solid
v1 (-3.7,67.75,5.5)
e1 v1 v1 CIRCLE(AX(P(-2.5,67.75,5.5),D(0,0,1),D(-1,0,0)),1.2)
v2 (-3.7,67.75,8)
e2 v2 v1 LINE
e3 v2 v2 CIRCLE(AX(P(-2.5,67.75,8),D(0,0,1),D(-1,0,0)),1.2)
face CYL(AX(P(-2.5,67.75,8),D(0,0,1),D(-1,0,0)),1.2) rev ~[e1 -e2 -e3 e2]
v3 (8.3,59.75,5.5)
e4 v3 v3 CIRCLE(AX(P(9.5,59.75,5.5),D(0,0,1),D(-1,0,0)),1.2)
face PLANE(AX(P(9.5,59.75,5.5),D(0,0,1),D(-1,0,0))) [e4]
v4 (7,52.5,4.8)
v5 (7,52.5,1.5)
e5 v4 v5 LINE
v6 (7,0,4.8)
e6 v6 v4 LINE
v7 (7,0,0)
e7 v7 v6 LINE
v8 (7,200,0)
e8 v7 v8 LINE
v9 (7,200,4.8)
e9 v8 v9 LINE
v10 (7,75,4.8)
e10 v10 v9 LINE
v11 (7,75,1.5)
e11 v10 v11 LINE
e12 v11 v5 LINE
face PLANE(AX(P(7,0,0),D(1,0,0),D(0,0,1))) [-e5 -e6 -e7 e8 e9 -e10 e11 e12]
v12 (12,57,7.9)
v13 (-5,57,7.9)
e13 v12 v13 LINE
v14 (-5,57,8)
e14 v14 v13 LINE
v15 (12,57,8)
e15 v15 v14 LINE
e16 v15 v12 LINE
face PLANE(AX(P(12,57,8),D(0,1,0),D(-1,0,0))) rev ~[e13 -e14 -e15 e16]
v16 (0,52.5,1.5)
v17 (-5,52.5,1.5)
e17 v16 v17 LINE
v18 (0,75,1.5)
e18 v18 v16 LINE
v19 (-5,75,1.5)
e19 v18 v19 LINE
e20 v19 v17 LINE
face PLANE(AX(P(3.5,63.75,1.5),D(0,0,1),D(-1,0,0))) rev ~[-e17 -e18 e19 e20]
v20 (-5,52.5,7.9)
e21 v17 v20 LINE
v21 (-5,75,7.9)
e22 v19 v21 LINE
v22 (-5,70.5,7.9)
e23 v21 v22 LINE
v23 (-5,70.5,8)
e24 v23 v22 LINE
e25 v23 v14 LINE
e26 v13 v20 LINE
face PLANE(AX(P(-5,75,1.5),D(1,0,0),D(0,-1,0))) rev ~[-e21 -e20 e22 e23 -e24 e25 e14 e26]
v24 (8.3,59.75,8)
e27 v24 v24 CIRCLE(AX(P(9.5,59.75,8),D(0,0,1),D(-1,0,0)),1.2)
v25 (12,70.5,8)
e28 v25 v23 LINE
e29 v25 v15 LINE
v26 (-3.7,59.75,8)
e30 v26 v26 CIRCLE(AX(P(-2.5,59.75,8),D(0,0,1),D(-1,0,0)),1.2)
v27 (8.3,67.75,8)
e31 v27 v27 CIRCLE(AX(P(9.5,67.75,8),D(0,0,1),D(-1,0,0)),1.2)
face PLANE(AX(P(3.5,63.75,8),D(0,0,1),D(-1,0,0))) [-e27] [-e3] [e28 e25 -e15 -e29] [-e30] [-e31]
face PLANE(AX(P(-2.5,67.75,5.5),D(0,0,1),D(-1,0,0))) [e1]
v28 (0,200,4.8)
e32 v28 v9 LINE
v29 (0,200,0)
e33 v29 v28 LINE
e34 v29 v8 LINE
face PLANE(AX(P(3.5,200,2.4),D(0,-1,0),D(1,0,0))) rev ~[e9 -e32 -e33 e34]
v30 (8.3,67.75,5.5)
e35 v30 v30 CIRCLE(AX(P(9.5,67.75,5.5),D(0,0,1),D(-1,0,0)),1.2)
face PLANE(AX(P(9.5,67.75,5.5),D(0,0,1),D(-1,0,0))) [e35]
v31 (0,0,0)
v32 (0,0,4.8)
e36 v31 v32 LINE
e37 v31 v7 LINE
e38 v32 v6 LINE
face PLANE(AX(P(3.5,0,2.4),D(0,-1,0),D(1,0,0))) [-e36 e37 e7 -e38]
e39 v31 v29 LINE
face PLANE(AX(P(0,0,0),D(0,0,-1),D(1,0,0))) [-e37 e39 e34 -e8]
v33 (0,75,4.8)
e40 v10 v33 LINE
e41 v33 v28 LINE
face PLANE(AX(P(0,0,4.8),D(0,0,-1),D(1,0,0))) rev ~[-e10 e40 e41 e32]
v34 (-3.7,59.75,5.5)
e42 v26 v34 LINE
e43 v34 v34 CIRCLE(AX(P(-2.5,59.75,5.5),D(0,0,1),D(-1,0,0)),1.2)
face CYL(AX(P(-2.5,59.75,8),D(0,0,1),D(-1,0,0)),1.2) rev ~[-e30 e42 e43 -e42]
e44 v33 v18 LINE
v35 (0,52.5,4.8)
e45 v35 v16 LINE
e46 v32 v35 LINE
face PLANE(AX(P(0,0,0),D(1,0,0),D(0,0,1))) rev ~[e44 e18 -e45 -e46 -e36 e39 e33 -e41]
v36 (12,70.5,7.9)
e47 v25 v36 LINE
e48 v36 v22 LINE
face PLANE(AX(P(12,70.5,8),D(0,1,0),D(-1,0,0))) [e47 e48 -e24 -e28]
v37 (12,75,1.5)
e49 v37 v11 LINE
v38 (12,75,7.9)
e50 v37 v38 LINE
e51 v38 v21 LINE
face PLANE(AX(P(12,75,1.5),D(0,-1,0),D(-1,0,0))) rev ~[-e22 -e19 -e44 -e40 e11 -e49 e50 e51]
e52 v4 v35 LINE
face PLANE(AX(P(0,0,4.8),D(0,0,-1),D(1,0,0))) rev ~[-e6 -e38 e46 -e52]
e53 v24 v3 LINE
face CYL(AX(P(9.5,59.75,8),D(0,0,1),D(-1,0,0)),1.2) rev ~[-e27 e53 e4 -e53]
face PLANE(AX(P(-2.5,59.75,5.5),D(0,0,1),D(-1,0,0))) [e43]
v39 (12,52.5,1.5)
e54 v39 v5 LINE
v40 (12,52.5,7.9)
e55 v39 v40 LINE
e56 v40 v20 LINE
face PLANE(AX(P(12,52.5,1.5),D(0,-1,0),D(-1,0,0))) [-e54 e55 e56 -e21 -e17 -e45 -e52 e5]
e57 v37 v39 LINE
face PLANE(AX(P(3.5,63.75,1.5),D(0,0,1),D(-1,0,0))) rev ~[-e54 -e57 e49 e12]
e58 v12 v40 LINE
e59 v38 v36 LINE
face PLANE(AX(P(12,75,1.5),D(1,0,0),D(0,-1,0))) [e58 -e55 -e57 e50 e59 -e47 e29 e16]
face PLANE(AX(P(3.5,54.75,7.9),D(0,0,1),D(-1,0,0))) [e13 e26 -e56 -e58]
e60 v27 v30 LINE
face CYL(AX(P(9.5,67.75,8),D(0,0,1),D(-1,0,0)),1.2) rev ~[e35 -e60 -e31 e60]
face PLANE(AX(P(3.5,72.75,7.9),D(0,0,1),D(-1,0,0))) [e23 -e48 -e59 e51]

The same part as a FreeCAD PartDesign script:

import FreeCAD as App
import Part
import Sketcher
from FreeCAD import Vector


def add_polygon(sketch, points):
    """Adds a closed chain of lines whose ends are joined by coincident constraints."""
    first, n = sketch.GeometryCount, len(points)
    for a, b in zip(points, points[1:] + points[:1]):
        sketch.addGeometry(Part.LineSegment(App.Vector(*a, 0), App.Vector(*b, 0)), False)
    for i in range(n):
        sketch.addConstraint(Sketcher.Constraint("Coincident", first + i, 2, first + (i + 1) % n, 1))

doc = App.newDocument("Part")
params = doc.addObject("Spreadsheet::Sheet", "Params")
for row, (alias, value) in enumerate([
    ("sketch1_width", "7 mm"),
    ("sketch1_height", "4.8 mm"),
    ("pad1_length", "200 mm"),
    ("sketch2_width", "17 mm"),
    ("sketch2_height", "22.5 mm"),
    ("pad2_length", "6.5 mm"),
    ("sketch3_width", "17 mm"),
    ("sketch3_height", "4.5 mm"),
    ("pocket1_length", "0.1 mm"),
    ("sketch4_diameter", "2.4 mm"),
    ("pocket2_length", "2.5 mm"),
], start=1):
    params.set(f"A{row}", alias)
    params.set(f"B{row}", "=" + value)
    params.setAlias(f"B{row}", alias)

body = doc.addObject("PartDesign::Body", "Body")

sketch1 = body.newObject("Sketcher::SketchObject", "Sketch")
sketch1.AttachmentSupport = (doc.getObject("XZ_Plane"), [""])
sketch1.MapMode = "FlatFace"
add_polygon(sketch1, [(0, 4.8), (0, 0), (7, 0), (7, 4.8)])
sketch1.addConstraint([
    Sketcher.Constraint("Vertical", 0),
    Sketcher.Constraint("Horizontal", 1),
    Sketcher.Constraint("Vertical", 2),
    Sketcher.Constraint("Horizontal", 3),
    Sketcher.Constraint("Coincident", 0, 2, -1, 1),
    Sketcher.Constraint("DistanceX", 1, 1, 1, 2, 7.0),
    Sketcher.Constraint("DistanceY", 0, 2, 0, 1, 4.8),
])
sketch1.setExpression("Constraints[9]", "Params.sketch1_width")
sketch1.setExpression("Constraints[10]", "Params.sketch1_height")
pad1 = body.newObject("PartDesign::Pad", "Pad")
pad1.Profile = sketch1
pad1.setExpression("Length", "Params.pad1_length")
pad1.Reversed = True

sketch2 = body.newObject("Sketcher::SketchObject", "Sketch001")
sketch2.AttachmentSupport = (doc.getObject("XY_Plane"), [""])
sketch2.MapMode = "FlatFace"
sketch2.AttachmentOffset = App.Placement(Vector(0, 0, 1.5), App.Rotation())
add_polygon(sketch2, [(12, 52.5), (12, 75), (-5, 75), (-5, 52.5)])
sketch2.addConstraint([
    Sketcher.Constraint("Vertical", 0),
    Sketcher.Constraint("Horizontal", 1),
    Sketcher.Constraint("Vertical", 2),
    Sketcher.Constraint("Horizontal", 3),
    Sketcher.Constraint("DistanceX", 1, 2, 1, 1, 17.0),
    Sketcher.Constraint("DistanceY", 0, 1, 0, 2, 22.5),
    Sketcher.Constraint("DistanceX", -1, 1, 0, 2, 12.0),
    Sketcher.Constraint("DistanceY", -1, 1, 0, 2, 75.0),
])
sketch2.setExpression("Constraints[8]", "Params.sketch2_width")
sketch2.setExpression("Constraints[9]", "Params.sketch2_height")
pad2 = body.newObject("PartDesign::Pad", "Pad001")
pad2.Profile = sketch2
pad2.setExpression("Length", "Params.pad2_length")

sketch3 = body.newObject("Sketcher::SketchObject", "Sketch002")
sketch3.AttachmentSupport = (doc.getObject("XY_Plane"), [""])
sketch3.MapMode = "FlatFace"
sketch3.AttachmentOffset = App.Placement(Vector(0, 0, 8), App.Rotation())
add_polygon(sketch3, [(12, 52.5), (12, 57), (-5, 57), (-5, 52.5)])
add_polygon(sketch3, [(12, 70.5), (12, 75), (-5, 75), (-5, 70.5)])
sketch3.addConstraint([
    Sketcher.Constraint("Vertical", 0),
    Sketcher.Constraint("Horizontal", 1),
    Sketcher.Constraint("Vertical", 2),
    Sketcher.Constraint("Horizontal", 3),
    Sketcher.Constraint("Vertical", 4),
    Sketcher.Constraint("Horizontal", 5),
    Sketcher.Constraint("Vertical", 6),
    Sketcher.Constraint("Horizontal", 7),
    Sketcher.Constraint("Vertical", 3, 2, 4, 2),
    Sketcher.Constraint("Vertical", 2, 2, 5, 2),
    Sketcher.Constraint("Equal", 2, 4),
    Sketcher.Constraint("DistanceX", 1, 2, 1, 1, 17.0),
    Sketcher.Constraint("DistanceY", 0, 1, 0, 2, 4.5),
    Sketcher.Constraint("DistanceX", -1, 1, 0, 2, 12.0),
    Sketcher.Constraint("DistanceY", -1, 1, 0, 2, 57.0),
    Sketcher.Constraint("DistanceY", -1, 1, 4, 2, 75.0),
])
sketch3.setExpression("Constraints[19]", "Params.sketch3_width")
sketch3.setExpression("Constraints[20]", "Params.sketch3_height")
pocket1 = body.newObject("PartDesign::Pocket", "Pocket")
pocket1.Profile = sketch3
pocket1.setExpression("Length", "Params.pocket1_length")

sketch4 = body.newObject("Sketcher::SketchObject", "Sketch003")
sketch4.AttachmentSupport = (doc.getObject("XY_Plane"), [""])
sketch4.MapMode = "FlatFace"
sketch4.AttachmentOffset = App.Placement(Vector(0, 0, 8), App.Rotation())
sketch4.addGeometry([
    Part.Circle(Vector(9.5, 59.75, 0), Vector(0, 0, 1), 1.2),
    Part.Circle(Vector(-2.5, 59.75, 0), Vector(0, 0, 1), 1.2),
    Part.Circle(Vector(-2.5, 67.75, 0), Vector(0, 0, 1), 1.2),
    Part.Circle(Vector(9.5, 67.75, 0), Vector(0, 0, 1), 1.2),
], False)
sketch4.addConstraint([
    Sketcher.Constraint("Equal", 0, 1),
    Sketcher.Constraint("Equal", 1, 2),
    Sketcher.Constraint("Equal", 2, 3),
    Sketcher.Constraint("Horizontal", 0, 3, 1, 3),
    Sketcher.Constraint("Horizontal", 2, 3, 3, 3),
    Sketcher.Constraint("Vertical", 1, 3, 2, 3),
    Sketcher.Constraint("Vertical", 0, 3, 3, 3),
    Sketcher.Constraint("Diameter", 0, 2.4),
    Sketcher.Constraint("DistanceX", 1, 3, 0, 3, 12.0),
    Sketcher.Constraint("DistanceY", 1, 3, 2, 3, 8.0),
    Sketcher.Constraint("DistanceX", -1, 1, 0, 3, 9.5),
    Sketcher.Constraint("DistanceY", -1, 1, 0, 3, 59.75),
])
sketch4.setExpression("Constraints[7]", "Params.sketch4_diameter")
pocket2 = body.newObject("PartDesign::Pocket", "Pocket001")
pocket2.Profile = sketch4
pocket2.setExpression("Length", "Params.pocket2_length")

doc.recompute()
